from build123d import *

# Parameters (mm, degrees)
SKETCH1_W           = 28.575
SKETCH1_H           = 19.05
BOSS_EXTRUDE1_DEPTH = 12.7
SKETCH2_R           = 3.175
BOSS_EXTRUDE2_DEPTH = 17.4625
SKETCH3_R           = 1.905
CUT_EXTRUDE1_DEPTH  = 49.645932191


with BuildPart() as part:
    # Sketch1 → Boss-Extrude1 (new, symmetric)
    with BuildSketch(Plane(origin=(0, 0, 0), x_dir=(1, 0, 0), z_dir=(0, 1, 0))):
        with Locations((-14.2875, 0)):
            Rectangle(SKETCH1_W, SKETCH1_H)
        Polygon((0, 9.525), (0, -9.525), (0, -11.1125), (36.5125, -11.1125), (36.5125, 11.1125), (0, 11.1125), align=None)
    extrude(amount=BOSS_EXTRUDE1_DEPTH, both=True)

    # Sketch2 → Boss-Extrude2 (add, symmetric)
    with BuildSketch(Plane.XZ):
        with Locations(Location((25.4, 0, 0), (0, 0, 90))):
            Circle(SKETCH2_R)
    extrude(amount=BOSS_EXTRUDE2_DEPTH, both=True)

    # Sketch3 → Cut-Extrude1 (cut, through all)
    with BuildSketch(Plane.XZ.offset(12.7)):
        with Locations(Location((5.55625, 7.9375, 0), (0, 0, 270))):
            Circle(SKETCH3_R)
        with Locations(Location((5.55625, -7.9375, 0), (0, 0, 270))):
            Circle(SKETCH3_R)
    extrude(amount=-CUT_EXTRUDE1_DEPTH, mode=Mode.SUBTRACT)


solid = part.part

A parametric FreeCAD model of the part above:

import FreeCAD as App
import Part
import Sketcher
from FreeCAD import Vector
Q = App.Units.Quantity


def add_polygon(sketch, points):
    """Adds a closed chain of lines whose ends are joined by coincident constraints."""
    first, n = sketch.GeometryCount, len(points)
    for a, b in zip(points, points[1:] + points[:1]):
        sketch.addGeometry(Part.LineSegment(App.Vector(*a, 0), App.Vector(*b, 0)), False)
    for i in range(n):
        sketch.addConstraint(Sketcher.Constraint("Coincident", first + i, 2, first + (i + 1) % n, 1))

doc = App.newDocument("Part")
params = doc.addObject("Spreadsheet::Sheet", "Params")
for row, (alias, value) in enumerate([
    ("sketch1_height", "0.75 in"),
    ("sketch1_width", "1.125 in"),
    ("sketch1_width2", "1.4375 in"),
    ("sketch1_height2", "0.0625 in"),
    ("pad1_length", "1 in"),
    ("sketch2_diameter", "0.25 in"),
    ("pad2_length", "1.375 in"),
    ("sketch3_diameter", "0.15 in"),
], start=1):
    params.set(f"A{row}", alias)
    params.set(f"B{row}", "=" + value)
    params.setAlias(f"B{row}", alias)

body = doc.addObject("PartDesign::Body", "Body")

# Sketch on XZ plane
sketch1 = body.newObject("Sketcher::SketchObject", "Sketch")
sketch1.AttachmentSupport = (doc.getObject("XZ_Plane"), [""])
sketch1.MapMode = "FlatFace"
add_polygon(sketch1, [(-28.575, -9.525), (-28.575, 9.525), (0, 9.525), (0, 11.1125), (36.5125, 11.1125), (36.5125, -11.1125), (0, -11.1125), (0, -9.525)])  # lines 0-7
sketch1.addConstraint([
    Sketcher.Constraint("Vertical", 0),
    Sketcher.Constraint("Horizontal", 1),
    Sketcher.Constraint("Vertical", 2),
    Sketcher.Constraint("Horizontal", 3),
    Sketcher.Constraint("Vertical", 4),
    Sketcher.Constraint("Horizontal", 5),
    Sketcher.Constraint("Vertical", 6),
    Sketcher.Constraint("Horizontal", 7),
    Sketcher.Constraint("Symmetric", 2, 2, 5, 2, -1, 1),
    Sketcher.Constraint("Symmetric", 1, 2, 6, 2, -1),
    Sketcher.Constraint("DistanceY", 0, 1, 0, 2, Q("0.75 in")),
    Sketcher.Constraint("DistanceX", 1, 1, 1, 2, Q("1.125 in")),
    Sketcher.Constraint("DistanceX", 3, 1, 3, 2, Q("1.4375 in")),
    Sketcher.Constraint("DistanceY", 2, 1, 2, 2, Q("0.0625 in")),
])
sketch1.setExpression("Constraints[18]", "Params.sketch1_height")
sketch1.setExpression("Constraints[19]", "Params.sketch1_width")
sketch1.setExpression("Constraints[20]", "Params.sketch1_width2")
sketch1.setExpression("Constraints[21]", "Params.sketch1_height2")
pad1 = body.newObject("PartDesign::Pad", "Pad")
pad1.Profile = sketch1
pad1.setExpression("Length", "Params.pad1_length")
pad1.Midplane = True

# Sketch on XZ plane
sketch2 = body.newObject("Sketcher::SketchObject", "Sketch001")
sketch2.AttachmentSupport = (doc.getObject("XZ_Plane"), [""])
sketch2.MapMode = "FlatFace"
sketch2.addGeometry(Part.Circle(Vector(25.4, 0, 0), Vector(0, 0, 1), 3.175), False)
sketch2.addConstraint([
    Sketcher.Constraint("PointOnObject", 0, 3, -1),
    Sketcher.Constraint("Diameter", 0, Q("0.25 in")),
    Sketcher.Constraint("DistanceX", -1, 1, 0, 3, Q("1 in")),
])
sketch2.setExpression("Constraints[1]", "Params.sketch2_diameter")
pad2 = body.newObject("PartDesign::Pad", "Pad001")
pad2.Profile = sketch2
pad2.setExpression("Length", "Params.pad2_length")
pad2.Midplane = True

# Sketch on XZ plane
sketch3 = body.newObject("Sketcher::SketchObject", "Sketch002")
sketch3.AttachmentSupport = (doc.getObject("XZ_Plane"), [""])
sketch3.MapMode = "FlatFace"
sketch3.AttachmentOffset = App.Placement(Vector(0, 0, 0.5 * 25.4), App.Rotation())
sketch3.addGeometry([
    Part.Circle(Vector(5.55625, 7.9375, 0), Vector(0, 0, 1), 1.905),
    Part.Circle(Vector(5.55625, -7.9375, 0), Vector(0, 0, 1), 1.905),
], False)
sketch3.addConstraint([
    Sketcher.Constraint("Equal", 0, 1),
    Sketcher.Constraint("Symmetric", 0, 3, 1, 3, -1),
    Sketcher.Constraint("Diameter", 0, Q("0.15 in")),
    Sketcher.Constraint("DistanceX", -1, 1, 0, 3, Q("0.21875 in")),
    Sketcher.Constraint("DistanceY", -1, 1, 0, 3, Q("0.3125 in")),
])
sketch3.setExpression("Constraints[2]", "Params.sketch3_diameter")
pocket1 = body.newObject("PartDesign::Pocket", "Pocket")
pocket1.Profile = sketch3
pocket1.Type = "ThroughAll"

doc.recompute()
